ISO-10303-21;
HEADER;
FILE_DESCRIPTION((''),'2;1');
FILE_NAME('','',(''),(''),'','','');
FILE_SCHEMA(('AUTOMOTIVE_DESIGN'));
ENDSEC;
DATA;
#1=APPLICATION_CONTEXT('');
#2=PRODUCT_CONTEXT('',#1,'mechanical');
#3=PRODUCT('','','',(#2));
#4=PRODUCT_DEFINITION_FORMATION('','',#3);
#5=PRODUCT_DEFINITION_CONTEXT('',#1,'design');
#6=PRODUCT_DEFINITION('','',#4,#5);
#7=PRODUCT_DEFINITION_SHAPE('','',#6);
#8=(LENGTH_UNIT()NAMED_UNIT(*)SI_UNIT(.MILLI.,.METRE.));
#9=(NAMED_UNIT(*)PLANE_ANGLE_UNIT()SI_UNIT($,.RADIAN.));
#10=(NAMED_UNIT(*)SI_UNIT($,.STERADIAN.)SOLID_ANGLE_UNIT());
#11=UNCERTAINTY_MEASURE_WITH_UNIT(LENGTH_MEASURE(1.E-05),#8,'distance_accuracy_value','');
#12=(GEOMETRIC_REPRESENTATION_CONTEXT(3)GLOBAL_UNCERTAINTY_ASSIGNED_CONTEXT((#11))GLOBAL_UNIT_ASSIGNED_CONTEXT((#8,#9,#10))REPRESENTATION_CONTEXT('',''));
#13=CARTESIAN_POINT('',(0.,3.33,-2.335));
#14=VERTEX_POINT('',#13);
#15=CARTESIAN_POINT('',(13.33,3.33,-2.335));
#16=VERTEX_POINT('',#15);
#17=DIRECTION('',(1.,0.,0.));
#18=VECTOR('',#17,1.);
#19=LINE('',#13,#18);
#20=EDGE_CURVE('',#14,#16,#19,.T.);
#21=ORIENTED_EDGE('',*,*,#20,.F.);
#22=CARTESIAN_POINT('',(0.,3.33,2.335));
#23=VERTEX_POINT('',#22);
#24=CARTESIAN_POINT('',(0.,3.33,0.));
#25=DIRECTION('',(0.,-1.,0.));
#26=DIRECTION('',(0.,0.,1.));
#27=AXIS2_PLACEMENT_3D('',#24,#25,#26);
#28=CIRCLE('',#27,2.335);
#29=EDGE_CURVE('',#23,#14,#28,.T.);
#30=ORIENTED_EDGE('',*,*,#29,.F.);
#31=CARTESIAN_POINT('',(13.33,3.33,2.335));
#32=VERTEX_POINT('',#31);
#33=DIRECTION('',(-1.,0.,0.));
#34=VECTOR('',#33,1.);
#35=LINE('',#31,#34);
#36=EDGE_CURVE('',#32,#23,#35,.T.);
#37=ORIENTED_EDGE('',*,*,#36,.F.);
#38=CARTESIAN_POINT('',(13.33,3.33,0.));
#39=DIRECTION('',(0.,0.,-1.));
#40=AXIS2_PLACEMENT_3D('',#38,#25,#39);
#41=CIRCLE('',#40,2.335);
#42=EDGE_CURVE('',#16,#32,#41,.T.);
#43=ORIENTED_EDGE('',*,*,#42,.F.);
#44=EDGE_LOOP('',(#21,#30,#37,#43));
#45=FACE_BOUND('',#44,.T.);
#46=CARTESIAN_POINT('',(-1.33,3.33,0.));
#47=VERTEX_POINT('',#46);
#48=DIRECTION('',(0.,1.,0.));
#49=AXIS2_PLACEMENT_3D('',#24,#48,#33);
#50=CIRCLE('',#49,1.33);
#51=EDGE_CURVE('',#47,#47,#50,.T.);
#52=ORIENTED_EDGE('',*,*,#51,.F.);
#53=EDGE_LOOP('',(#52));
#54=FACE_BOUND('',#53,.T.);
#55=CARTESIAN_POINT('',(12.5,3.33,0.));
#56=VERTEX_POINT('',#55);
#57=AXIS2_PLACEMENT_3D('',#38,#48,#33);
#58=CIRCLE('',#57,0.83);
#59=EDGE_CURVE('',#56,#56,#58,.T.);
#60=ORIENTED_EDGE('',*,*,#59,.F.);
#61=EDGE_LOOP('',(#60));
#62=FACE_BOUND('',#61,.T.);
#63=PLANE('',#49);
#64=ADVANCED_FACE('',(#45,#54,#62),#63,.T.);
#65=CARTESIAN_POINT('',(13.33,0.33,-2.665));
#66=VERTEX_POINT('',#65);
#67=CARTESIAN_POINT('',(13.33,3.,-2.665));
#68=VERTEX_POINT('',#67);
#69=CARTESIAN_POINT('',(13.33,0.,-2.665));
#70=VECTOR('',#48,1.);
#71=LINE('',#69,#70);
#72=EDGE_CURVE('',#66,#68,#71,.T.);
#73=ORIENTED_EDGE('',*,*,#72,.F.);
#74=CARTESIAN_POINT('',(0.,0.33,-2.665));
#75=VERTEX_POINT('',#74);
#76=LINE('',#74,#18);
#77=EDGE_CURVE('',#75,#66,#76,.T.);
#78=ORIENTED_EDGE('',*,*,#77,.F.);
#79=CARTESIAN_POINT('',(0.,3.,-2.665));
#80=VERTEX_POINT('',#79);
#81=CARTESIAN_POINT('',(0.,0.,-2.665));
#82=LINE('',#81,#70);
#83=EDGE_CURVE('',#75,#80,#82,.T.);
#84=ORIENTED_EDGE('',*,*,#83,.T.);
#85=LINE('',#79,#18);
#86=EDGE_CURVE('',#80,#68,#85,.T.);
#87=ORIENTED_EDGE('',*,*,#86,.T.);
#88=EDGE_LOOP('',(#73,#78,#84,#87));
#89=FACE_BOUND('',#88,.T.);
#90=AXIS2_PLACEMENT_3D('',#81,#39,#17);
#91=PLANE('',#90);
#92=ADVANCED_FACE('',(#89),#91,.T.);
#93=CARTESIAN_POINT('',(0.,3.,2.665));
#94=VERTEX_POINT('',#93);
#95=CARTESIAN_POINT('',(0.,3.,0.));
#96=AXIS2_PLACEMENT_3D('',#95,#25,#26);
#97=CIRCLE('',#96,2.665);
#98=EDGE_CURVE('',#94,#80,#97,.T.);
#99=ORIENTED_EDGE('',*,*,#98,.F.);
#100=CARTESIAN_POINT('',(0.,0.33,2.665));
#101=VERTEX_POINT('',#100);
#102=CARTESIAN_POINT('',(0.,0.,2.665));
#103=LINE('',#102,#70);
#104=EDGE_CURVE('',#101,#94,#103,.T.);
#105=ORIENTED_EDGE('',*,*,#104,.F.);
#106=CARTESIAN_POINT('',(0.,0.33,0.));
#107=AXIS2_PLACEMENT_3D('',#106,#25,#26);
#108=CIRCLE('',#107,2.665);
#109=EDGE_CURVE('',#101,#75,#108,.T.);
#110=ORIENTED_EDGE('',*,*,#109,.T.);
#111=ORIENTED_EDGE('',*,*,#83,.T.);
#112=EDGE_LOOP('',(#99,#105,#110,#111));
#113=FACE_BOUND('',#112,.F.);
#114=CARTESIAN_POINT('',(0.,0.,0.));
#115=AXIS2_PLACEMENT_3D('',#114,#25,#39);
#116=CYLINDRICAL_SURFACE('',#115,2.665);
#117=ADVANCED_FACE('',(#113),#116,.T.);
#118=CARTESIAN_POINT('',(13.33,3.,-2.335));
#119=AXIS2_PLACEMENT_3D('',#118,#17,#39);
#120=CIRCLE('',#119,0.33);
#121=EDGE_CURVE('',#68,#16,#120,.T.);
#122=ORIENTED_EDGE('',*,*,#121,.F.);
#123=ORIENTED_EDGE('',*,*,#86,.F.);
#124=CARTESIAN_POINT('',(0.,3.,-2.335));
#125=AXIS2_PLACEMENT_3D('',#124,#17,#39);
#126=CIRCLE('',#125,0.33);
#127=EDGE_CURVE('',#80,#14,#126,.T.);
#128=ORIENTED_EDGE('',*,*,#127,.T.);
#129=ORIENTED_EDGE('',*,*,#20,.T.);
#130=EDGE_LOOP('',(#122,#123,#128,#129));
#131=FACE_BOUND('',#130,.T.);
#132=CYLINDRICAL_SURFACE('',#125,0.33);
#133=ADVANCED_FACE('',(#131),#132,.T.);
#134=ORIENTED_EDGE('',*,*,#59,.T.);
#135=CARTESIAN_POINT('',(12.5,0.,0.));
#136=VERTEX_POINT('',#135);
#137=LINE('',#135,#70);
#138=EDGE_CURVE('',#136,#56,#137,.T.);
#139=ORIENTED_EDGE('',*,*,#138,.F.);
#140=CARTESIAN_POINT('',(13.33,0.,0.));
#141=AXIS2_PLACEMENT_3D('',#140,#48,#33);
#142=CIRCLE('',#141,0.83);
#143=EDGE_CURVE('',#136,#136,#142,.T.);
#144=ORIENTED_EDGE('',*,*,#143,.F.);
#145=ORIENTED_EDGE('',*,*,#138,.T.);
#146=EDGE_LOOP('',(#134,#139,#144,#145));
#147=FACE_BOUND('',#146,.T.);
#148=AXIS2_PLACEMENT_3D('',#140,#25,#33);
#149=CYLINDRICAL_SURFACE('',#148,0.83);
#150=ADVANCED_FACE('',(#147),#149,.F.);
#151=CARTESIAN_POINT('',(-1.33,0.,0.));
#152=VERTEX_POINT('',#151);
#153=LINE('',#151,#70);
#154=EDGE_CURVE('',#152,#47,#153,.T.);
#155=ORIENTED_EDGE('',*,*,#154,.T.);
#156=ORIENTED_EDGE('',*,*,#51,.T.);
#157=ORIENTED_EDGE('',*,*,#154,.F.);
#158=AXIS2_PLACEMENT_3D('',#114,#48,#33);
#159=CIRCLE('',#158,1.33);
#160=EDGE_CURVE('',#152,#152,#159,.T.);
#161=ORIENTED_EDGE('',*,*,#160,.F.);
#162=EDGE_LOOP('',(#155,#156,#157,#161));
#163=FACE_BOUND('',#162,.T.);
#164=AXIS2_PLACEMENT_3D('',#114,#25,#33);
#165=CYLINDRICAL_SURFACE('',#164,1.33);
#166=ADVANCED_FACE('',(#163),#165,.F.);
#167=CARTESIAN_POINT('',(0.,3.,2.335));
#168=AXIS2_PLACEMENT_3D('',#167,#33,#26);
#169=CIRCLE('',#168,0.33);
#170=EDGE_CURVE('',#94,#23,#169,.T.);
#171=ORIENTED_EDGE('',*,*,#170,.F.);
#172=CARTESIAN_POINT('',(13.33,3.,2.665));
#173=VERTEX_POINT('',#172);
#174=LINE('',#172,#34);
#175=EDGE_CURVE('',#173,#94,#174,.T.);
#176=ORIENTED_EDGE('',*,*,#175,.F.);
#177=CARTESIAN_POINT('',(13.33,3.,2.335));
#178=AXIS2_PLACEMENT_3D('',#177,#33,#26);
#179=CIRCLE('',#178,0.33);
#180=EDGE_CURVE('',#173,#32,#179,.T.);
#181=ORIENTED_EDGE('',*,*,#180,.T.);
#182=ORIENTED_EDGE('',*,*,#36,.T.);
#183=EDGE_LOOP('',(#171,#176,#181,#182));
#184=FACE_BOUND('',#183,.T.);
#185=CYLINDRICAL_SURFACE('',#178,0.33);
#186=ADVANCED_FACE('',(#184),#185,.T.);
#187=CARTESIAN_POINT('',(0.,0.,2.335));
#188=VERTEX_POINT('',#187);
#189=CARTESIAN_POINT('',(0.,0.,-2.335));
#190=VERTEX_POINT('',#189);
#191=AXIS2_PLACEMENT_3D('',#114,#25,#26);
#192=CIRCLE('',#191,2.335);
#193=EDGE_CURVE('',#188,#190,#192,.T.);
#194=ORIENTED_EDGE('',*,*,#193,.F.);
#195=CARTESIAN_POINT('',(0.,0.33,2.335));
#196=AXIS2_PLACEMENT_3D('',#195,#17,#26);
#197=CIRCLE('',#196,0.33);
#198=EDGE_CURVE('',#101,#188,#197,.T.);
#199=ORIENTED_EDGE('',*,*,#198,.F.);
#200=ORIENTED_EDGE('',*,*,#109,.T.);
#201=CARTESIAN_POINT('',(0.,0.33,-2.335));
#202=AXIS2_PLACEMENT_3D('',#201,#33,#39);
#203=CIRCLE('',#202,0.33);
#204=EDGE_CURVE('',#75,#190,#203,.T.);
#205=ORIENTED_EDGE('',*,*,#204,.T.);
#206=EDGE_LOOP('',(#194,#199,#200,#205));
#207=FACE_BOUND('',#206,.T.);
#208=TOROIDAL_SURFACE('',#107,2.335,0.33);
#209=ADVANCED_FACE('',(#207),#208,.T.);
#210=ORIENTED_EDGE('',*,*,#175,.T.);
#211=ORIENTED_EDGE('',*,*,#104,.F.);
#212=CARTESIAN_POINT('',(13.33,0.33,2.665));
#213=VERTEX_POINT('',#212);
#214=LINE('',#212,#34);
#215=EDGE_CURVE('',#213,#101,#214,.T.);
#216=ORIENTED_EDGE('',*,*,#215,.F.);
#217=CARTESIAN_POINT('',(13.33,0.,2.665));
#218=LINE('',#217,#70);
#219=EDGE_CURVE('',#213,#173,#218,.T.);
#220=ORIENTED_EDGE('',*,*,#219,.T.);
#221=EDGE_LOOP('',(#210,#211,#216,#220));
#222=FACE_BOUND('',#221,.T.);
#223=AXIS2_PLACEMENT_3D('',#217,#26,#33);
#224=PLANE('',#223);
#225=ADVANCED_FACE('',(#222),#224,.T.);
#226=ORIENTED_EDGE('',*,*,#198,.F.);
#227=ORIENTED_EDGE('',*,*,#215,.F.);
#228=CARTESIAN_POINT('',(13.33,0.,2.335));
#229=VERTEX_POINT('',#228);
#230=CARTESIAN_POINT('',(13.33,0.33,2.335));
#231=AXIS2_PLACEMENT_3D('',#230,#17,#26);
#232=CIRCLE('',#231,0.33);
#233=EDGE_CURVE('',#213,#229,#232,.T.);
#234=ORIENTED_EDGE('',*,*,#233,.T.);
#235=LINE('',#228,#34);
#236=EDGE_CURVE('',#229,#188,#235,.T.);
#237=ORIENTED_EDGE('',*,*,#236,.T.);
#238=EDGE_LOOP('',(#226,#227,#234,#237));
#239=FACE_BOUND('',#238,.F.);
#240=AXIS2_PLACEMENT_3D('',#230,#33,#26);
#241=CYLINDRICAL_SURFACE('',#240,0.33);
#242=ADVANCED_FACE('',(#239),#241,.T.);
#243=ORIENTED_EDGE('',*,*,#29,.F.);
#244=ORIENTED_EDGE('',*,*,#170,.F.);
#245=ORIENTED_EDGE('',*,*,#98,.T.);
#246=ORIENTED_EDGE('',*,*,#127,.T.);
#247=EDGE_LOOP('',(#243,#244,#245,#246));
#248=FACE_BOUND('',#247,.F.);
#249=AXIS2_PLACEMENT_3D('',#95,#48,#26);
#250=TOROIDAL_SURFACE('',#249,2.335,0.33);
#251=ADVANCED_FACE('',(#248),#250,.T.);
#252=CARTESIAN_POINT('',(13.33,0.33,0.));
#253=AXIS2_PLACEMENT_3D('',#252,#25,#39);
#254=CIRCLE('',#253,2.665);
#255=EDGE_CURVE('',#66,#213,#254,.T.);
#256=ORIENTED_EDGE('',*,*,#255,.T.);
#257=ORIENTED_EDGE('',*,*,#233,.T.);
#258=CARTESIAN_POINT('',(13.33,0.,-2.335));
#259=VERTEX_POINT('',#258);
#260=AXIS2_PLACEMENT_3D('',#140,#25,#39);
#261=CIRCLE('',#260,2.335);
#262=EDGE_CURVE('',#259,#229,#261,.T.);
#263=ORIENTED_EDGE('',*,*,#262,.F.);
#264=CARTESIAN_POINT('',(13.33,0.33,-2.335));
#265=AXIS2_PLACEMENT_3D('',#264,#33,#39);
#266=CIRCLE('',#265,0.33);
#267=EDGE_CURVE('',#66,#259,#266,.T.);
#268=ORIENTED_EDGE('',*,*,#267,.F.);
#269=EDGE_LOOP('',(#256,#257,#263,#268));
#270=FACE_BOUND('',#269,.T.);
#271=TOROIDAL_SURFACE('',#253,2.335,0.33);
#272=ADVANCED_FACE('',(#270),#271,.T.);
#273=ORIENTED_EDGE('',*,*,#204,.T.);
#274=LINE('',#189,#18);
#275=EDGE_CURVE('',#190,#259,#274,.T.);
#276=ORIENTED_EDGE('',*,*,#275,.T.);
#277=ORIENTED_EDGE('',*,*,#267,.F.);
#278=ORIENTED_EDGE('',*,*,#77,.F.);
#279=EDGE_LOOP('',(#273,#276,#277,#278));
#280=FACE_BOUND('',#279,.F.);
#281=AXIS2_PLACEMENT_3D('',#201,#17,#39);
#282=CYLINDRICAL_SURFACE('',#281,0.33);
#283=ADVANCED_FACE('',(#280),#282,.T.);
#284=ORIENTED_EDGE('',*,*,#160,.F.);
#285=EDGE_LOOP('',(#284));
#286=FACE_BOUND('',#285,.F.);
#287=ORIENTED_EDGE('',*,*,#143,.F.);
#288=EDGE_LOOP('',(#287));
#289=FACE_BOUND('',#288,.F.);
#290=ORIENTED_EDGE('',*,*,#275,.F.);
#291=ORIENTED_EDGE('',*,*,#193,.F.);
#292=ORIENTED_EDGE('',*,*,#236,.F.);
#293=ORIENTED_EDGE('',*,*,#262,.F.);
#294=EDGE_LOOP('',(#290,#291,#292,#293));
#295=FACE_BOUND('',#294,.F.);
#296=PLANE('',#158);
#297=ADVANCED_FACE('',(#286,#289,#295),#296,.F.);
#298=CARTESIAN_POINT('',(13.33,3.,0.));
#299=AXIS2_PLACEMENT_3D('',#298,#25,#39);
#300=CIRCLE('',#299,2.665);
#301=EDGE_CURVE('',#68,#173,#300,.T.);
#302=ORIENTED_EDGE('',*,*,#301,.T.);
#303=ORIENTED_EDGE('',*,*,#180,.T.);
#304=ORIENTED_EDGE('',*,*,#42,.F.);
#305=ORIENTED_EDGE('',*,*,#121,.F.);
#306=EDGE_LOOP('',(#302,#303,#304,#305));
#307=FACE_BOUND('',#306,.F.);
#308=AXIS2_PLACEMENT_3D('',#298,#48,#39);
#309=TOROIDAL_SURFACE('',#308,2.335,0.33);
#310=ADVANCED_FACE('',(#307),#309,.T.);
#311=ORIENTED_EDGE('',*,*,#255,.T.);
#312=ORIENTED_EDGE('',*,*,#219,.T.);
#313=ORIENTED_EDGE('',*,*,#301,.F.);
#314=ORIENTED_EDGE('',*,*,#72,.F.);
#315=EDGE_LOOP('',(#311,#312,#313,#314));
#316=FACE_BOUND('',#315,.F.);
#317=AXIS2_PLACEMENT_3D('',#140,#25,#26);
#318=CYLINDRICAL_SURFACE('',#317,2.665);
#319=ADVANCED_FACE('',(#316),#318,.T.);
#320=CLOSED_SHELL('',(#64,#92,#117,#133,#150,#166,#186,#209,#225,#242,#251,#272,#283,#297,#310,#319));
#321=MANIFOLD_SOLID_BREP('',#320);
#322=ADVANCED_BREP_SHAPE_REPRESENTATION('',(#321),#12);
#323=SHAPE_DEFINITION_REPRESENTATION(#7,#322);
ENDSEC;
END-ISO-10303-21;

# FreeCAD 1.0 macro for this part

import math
import FreeCAD as App
import Part
import Sketcher
from FreeCAD import Vector
Q = App.Units.Quantity


def edges_at(feature, points):
    """Names of the edges that pass closest to the given points."""
    edges = feature.Shape.Edges
    near = lambda p: min(range(len(edges)), key=lambda i: edges[i].distToShape(Part.Vertex(*p))[0])
    return sorted({f"Edge{near(p) + 1}" for p in points})

doc = App.newDocument("Part")
body = doc.addObject("PartDesign::Body", "Body")

sketch1 = body.newObject("Sketcher::SketchObject", "Sketch")
sketch1.AttachmentSupport = (doc.getObject("XZ_Plane"), [""])
sketch1.MapMode = "FlatFace"
sketch1.addGeometry([
    Part.LineSegment(Vector(13.33, -2.665, 0), Vector(0, -2.665, 0)),
    Part.ArcOfCircle(Part.Circle(Vector(0, 0, 0), Vector(0, 0, 1), 2.665), math.radians(90), math.radians(270)),
    Part.LineSegment(Vector(0, 2.665, 0), Vector(13.33, 2.665, 0)),
    Part.ArcOfCircle(Part.Circle(Vector(13.33, 0, 0), Vector(0, 0, 1), 2.665), math.radians(-90), math.radians(90)),
    Part.Circle(Vector(13.33, 0, 0), Vector(0, 0, 1), 0.83),
    Part.Circle(Vector(0, 0, 0), Vector(0, 0, 1), 1.33),
], False)
sketch1.addConstraint([
    Sketcher.Constraint("Tangent", 0, 2, 1, 2),
    Sketcher.Constraint("Tangent", 1, 1, 2, 1),
    Sketcher.Constraint("Tangent", 2, 2, 3, 2),
    Sketcher.Constraint("Tangent", 3, 1, 0, 1),
    Sketcher.Constraint("Horizontal", 0),
    Sketcher.Constraint("Horizontal", 2),
    Sketcher.Constraint("Coincident", 1, 3, -1, 1),
    Sketcher.Constraint("Coincident", 5, 3, -1, 1),
    Sketcher.Constraint("Coincident", 4, 3, 3, 3),
    Sketcher.Constraint("Diameter", 4, Q("1.66 mm")),
    Sketcher.Constraint("Diameter", 5, Q("2.66 mm")),
    Sketcher.Constraint("Radius", 1, Q("2.665 mm")),
    Sketcher.Constraint("DistanceX", 0, 2, 0, 1, Q("0.5248 in")),
])
pad1 = body.newObject("PartDesign::Pad", "Pad")
pad1.Profile = sketch1
pad1.Length = Q("0.1311024 in")
pad1.Reversed = True
doc.recompute()

fillet = body.newObject("PartDesign::Fillet", "Fillet")
fillet.Base = (pad1, edges_at(pad1, [
    (6.665, 0, -2.665),
    (6.665, 3.33, -2.665),
    (-2.665, 0, 0),
    (6.665, 0, 2.665),
    (15.995, 0, 0),
    (-2.665, 3.33, 0),
    (6.665, 3.33, 2.665),
    (15.995, 3.33, 0),
]))
fillet.Radius = Q("0.0129921 in")

doc.recompute()
